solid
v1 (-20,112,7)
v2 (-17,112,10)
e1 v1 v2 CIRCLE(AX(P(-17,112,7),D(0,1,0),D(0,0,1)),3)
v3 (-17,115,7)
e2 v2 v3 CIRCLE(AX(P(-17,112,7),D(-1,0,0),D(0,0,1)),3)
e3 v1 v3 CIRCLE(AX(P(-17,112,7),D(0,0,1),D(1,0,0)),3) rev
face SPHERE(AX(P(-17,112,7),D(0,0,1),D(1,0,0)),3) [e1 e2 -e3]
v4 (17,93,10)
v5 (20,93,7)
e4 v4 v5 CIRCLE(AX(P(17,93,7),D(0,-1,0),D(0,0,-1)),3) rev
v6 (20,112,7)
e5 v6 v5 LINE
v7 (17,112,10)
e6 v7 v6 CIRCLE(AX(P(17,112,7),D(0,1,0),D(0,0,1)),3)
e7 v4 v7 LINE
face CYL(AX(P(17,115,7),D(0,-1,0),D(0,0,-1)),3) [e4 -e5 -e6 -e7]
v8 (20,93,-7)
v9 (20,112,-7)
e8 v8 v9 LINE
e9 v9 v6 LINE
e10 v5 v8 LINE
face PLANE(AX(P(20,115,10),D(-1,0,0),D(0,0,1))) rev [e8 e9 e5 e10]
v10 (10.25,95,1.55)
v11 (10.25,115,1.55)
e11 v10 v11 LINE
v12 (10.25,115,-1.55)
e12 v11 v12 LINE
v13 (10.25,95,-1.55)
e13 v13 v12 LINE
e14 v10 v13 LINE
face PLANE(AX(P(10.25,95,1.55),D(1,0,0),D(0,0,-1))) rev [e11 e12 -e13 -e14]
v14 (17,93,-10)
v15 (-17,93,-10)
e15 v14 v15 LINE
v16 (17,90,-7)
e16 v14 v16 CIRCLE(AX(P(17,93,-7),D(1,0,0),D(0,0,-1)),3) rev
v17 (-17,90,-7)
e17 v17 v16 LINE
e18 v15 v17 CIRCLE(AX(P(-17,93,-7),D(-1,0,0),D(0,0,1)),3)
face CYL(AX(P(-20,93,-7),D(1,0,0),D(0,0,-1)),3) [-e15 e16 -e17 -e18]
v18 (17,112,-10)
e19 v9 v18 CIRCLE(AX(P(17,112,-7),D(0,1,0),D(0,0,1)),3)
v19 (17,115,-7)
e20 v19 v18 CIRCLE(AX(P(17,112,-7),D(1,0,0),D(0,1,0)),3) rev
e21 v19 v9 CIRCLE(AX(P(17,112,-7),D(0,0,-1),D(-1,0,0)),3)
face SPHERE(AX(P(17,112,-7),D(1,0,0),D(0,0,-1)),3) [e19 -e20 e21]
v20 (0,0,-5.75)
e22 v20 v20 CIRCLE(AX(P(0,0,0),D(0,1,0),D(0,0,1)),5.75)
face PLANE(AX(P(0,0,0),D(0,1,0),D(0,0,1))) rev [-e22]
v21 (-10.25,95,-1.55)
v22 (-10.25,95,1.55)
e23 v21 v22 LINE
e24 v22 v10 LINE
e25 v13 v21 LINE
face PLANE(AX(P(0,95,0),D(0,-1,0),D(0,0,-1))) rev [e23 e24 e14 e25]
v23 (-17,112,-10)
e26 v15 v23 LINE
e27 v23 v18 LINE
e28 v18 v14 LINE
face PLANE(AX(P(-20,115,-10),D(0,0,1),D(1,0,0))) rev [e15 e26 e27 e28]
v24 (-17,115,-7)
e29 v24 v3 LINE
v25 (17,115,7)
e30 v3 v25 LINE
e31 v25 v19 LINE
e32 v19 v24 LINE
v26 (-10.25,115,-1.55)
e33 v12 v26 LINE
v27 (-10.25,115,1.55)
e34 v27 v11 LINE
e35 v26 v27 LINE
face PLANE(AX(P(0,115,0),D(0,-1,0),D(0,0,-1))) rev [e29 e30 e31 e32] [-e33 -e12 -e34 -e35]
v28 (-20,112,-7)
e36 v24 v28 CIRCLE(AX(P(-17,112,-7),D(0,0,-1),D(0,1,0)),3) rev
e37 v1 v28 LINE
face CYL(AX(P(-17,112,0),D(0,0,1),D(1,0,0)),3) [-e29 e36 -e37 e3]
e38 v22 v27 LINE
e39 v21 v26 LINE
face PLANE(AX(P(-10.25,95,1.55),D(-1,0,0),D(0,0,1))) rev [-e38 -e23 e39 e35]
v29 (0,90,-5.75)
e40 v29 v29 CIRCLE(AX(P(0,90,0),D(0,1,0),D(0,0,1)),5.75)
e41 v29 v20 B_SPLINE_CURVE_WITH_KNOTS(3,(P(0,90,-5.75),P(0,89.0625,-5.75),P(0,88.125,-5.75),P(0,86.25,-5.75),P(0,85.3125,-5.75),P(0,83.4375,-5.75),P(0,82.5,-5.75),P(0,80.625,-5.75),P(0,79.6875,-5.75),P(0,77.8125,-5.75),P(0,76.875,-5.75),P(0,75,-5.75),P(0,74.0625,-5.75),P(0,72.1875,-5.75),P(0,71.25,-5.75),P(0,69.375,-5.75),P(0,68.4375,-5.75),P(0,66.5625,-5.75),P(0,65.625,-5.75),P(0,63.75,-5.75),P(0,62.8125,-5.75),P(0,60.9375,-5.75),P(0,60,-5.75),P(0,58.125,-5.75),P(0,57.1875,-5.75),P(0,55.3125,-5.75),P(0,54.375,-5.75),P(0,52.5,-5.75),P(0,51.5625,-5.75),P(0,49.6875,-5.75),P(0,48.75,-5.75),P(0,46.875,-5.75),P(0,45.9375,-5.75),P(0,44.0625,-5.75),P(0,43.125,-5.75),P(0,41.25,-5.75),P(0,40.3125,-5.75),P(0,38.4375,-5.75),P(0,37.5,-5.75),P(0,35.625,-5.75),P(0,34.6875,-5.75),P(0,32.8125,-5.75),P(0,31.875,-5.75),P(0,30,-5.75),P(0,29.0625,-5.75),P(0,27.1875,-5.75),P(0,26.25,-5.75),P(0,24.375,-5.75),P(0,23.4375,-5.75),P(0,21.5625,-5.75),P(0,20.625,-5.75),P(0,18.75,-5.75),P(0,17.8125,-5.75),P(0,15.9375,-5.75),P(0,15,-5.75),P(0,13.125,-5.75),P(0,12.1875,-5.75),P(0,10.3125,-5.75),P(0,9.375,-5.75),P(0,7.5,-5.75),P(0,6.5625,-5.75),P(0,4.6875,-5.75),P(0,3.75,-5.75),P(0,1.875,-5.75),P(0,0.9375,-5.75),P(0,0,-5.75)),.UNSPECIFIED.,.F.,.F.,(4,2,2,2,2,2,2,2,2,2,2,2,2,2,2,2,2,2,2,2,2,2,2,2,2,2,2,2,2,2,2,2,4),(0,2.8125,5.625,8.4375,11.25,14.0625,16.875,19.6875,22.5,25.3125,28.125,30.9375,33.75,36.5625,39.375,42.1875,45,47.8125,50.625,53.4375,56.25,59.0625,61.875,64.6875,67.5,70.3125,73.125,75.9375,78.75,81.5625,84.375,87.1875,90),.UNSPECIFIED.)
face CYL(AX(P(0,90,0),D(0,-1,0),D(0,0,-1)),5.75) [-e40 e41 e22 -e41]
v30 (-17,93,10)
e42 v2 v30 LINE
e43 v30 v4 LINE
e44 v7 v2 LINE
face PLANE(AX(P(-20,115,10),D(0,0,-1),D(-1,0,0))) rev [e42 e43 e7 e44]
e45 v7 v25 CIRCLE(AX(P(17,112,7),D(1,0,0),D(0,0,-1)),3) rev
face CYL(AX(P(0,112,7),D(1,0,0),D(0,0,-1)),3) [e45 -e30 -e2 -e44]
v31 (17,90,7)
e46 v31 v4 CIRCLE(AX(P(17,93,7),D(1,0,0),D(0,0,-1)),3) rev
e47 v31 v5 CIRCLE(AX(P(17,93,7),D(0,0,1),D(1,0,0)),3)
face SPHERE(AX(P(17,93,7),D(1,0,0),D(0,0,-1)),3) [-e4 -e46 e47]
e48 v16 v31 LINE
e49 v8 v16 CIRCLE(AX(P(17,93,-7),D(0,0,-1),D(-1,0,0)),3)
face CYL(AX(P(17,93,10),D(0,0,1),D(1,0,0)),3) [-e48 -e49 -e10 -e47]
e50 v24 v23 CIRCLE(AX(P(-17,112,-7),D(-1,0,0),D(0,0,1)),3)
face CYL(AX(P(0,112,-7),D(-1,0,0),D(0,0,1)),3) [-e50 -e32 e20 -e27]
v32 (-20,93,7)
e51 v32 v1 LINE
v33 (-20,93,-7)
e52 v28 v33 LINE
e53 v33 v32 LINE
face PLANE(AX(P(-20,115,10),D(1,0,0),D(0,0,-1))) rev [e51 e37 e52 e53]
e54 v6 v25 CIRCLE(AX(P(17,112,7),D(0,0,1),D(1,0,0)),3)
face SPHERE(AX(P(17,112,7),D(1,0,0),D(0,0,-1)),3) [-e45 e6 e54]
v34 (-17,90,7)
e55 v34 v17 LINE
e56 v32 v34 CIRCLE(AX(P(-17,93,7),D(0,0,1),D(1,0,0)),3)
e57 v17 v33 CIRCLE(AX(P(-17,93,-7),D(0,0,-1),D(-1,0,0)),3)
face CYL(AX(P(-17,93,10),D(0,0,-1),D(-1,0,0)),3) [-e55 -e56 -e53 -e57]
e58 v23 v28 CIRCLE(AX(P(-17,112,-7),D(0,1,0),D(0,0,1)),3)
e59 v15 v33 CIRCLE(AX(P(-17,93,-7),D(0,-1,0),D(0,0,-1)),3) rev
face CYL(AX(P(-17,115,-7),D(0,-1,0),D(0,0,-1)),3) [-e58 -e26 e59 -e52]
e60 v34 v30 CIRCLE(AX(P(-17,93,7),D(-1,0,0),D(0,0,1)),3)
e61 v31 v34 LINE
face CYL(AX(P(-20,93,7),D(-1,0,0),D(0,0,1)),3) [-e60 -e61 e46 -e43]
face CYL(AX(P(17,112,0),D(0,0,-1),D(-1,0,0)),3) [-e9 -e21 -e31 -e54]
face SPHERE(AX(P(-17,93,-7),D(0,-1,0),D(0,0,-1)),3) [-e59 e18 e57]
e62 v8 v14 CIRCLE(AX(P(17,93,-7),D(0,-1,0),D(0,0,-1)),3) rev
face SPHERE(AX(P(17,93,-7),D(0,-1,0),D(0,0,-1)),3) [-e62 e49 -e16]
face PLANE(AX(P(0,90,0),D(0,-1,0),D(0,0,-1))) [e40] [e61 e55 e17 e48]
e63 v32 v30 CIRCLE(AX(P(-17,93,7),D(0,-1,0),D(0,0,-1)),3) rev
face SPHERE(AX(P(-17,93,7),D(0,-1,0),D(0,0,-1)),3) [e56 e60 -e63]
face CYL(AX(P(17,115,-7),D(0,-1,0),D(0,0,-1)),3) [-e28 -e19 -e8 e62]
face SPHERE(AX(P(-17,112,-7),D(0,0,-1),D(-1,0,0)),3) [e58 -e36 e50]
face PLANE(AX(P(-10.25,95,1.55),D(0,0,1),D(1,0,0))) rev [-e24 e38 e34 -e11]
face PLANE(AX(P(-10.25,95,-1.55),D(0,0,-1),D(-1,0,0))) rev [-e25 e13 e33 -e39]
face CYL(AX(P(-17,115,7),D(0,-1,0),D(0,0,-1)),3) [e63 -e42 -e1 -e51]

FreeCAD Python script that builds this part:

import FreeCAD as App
import Part
import Sketcher
from FreeCAD import Vector
Q = App.Units.Quantity


def edges_at(feature, points):
    """Names of the edges that pass closest to the given points."""
    edges = feature.Shape.Edges
    near = lambda p: min(range(len(edges)), key=lambda i: edges[i].distToShape(Part.Vertex(*p))[0])
    return sorted({f"Edge{near(p) + 1}" for p in points})

doc = App.newDocument("Part")
body = doc.addObject("PartDesign::Body", "Body")

sketch1 = body.newObject("Sketcher::SketchObject", "Sketch")
sketch1.AttachmentSupport = (doc.getObject("XZ_Plane"), [""])
sketch1.MapMode = "FlatFace"
sketch1.addGeometry(Part.Circle(Vector(0, 0, 0), Vector(0, 0, 1), 5.75), False)
sketch1.addConstraint([
    Sketcher.Constraint("Coincident", 0, 3, -1, 1),
    Sketcher.Constraint("Diameter", 0, Q("11.5 mm")),
])
pad1 = body.newObject("PartDesign::Pad", "Pad")
pad1.Profile = sketch1
pad1.Length = 90
pad1.Reversed = True

sketch2 = body.newObject("Sketcher::SketchObject", "Sketch001")
sketch2.AttachmentSupport = (doc.getObject("XZ_Plane"), [""])
sketch2.MapMode = "FlatFace"
sketch2.AttachmentOffset = App.Placement(Vector(0, 0, -90), App.Rotation())
sketch2.addGeometry([
    Part.LineSegment(Vector(-20, -10, 0), Vector(-20, 10, 0)),
    Part.LineSegment(Vector(-20, 10, 0), Vector(20, 10, 0)),
    Part.LineSegment(Vector(20, 10, 0), Vector(20, -10, 0)),
    Part.LineSegment(Vector(20, -10, 0), Vector(-20, -10, 0)),
], False)
sketch2.addConstraint([
    Sketcher.Constraint("Coincident", 0, 2, 1, 1),
    Sketcher.Constraint("Coincident", 1, 2, 2, 1),
    Sketcher.Constraint("Coincident", 2, 2, 3, 1),
    Sketcher.Constraint("Coincident", 3, 2, 0, 1),
    Sketcher.Constraint("Vertical", 0),
    Sketcher.Constraint("Horizontal", 1),
    Sketcher.Constraint("Vertical", 2),
    Sketcher.Constraint("Horizontal", 3),
    Sketcher.Constraint("Symmetric", 0, 2, 2, 2, -1, 1),
    Sketcher.Constraint("DistanceX", 1, 1, 1, 2, Q("40 mm")),
    Sketcher.Constraint("DistanceY", 0, 1, 0, 2, Q("20 mm")),
])
pad2 = body.newObject("PartDesign::Pad", "Pad001")
pad2.Profile = sketch2
pad2.Length = 25
pad2.Reversed = True

sketch3 = body.newObject("Sketcher::SketchObject", "Sketch002")
sketch3.AttachmentSupport = (doc.getObject("XZ_Plane"), [""])
sketch3.MapMode = "FlatFace"
sketch3.AttachmentOffset = App.Placement(Vector(0, 0, -115), App.Rotation())
sketch3.addGeometry([
    Part.LineSegment(Vector(-10.25, -1.55, 0), Vector(-10.25, 1.55, 0)),
    Part.LineSegment(Vector(-10.25, 1.55, 0), Vector(10.25, 1.55, 0)),
    Part.LineSegment(Vector(10.25, 1.55, 0), Vector(10.25, -1.55, 0)),
    Part.LineSegment(Vector(10.25, -1.55, 0), Vector(-10.25, -1.55, 0)),
], False)
sketch3.addConstraint([
    Sketcher.Constraint("Coincident", 0, 2, 1, 1),
    Sketcher.Constraint("Coincident", 1, 2, 2, 1),
    Sketcher.Constraint("Coincident", 2, 2, 3, 1),
    Sketcher.Constraint("Coincident", 3, 2, 0, 1),
    Sketcher.Constraint("Vertical", 0),
    Sketcher.Constraint("Horizontal", 1),
    Sketcher.Constraint("Vertical", 2),
    Sketcher.Constraint("Horizontal", 3),
    Sketcher.Constraint("Symmetric", 0, 2, 2, 2, -1, 1),
    Sketcher.Constraint("DistanceX", 1, 1, 1, 2, Q("20.5 mm")),
    Sketcher.Constraint("DistanceY", 0, 1, 0, 2, Q("3.1 mm")),
])
pocket1 = body.newObject("PartDesign::Pocket", "Pocket")
pocket1.Profile = sketch3
pocket1.Length = 20
pocket1.Reversed = True
doc.recompute()

fillet = body.newObject("PartDesign::Fillet", "Fillet")
fillet.Base = (pocket1, edges_at(pocket1, [
    (20, 90, 0),
    (20, 102.5, 10),
    (0, 90, -10),
    (20, 102.5, -10),
    (-20, 90, 0),
    (-20, 102.5, -10),
    (0, 90, 10),
    (-20, 102.5, 10),
    (20, 115, 0),
    (0, 115, -10),
    (-20, 115, 0),
    (0, 115, 10),
]))
fillet.Radius = 3

doc.recompute()
